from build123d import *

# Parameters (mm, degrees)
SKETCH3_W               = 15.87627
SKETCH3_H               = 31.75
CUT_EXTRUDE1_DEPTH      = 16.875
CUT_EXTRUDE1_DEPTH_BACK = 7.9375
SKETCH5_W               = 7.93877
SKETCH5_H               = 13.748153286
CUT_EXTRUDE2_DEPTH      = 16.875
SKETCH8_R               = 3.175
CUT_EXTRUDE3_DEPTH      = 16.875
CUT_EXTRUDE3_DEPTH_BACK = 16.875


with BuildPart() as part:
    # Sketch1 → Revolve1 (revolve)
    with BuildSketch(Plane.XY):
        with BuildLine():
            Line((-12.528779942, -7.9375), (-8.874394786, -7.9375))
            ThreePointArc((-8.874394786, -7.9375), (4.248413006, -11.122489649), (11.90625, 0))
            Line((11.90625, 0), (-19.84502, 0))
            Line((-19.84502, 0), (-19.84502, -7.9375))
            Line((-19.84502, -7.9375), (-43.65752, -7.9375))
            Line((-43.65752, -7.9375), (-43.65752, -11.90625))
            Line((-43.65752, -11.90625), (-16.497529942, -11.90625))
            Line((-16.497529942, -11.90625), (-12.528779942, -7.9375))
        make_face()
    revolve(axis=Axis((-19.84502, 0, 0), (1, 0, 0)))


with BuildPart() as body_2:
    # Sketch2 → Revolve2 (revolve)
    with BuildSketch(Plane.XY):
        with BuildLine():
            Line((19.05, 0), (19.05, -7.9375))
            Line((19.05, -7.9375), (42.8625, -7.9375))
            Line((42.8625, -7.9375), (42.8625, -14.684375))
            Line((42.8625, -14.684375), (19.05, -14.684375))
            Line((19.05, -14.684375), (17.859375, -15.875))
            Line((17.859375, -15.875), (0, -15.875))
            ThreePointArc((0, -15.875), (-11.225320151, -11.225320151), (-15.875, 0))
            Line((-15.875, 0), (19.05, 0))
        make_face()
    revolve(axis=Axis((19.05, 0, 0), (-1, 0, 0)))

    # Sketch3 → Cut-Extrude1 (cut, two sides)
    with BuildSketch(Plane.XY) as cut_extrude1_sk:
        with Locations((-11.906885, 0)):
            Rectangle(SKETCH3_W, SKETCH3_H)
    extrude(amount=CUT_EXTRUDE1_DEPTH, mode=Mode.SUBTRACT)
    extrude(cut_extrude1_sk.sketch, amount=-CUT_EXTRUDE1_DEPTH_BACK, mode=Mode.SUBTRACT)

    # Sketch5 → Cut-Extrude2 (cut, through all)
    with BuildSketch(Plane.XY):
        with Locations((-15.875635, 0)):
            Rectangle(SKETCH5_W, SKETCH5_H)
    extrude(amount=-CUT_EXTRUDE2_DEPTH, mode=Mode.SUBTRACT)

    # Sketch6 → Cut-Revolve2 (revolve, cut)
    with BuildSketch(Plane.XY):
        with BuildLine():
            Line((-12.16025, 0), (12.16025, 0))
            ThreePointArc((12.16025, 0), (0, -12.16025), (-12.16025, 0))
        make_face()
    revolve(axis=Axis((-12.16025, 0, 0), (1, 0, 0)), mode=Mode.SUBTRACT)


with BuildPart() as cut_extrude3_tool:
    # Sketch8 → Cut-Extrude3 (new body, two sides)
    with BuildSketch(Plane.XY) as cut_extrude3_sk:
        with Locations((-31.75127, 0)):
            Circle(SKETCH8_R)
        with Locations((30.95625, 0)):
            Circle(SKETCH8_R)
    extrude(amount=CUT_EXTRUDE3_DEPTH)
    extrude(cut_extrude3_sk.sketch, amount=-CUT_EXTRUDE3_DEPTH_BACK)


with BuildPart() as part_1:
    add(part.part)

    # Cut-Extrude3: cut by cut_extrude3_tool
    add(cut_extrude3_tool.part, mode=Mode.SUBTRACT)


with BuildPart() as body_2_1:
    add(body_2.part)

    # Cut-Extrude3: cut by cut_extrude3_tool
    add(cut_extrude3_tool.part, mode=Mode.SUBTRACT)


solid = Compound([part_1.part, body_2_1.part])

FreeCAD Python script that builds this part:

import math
import FreeCAD as App
import Part
import Sketcher

V = App.Vector
Q = App.Units.Quantity


def add_polygon(sketch, points):
    """Adds a closed chain of lines whose ends are joined by coincident constraints."""
    first, n = sketch.GeometryCount, len(points)
    for a, b in zip(points, points[1:] + points[:1]):
        sketch.addGeometry(Part.LineSegment(App.Vector(*a, 0), App.Vector(*b, 0)), False)
    for i in range(n):
        sketch.addConstraint(Sketcher.Constraint("Coincident", first + i, 2, first + (i + 1) % n, 1))

doc = App.newDocument("Part")
body = doc.addObject("PartDesign::Body", "Body")

sketch1 = body.newObject("Sketcher::SketchObject", "Sketch")
sketch1.AttachmentSupport = (doc.getObject("XY_Plane"), [""])
sketch1.MapMode = "FlatFace"
sketch1.addGeometry(Part.LineSegment(V(-12.5, -7.9, 0), V(-8.9, -7.9, 0)), False)
sketch1.addGeometry(Part.ArcOfCircle(Part.Circle(V(0, 0, 0), V(0, 0, 1), 11.9), math.radians(-138), math.radians(0)), False)
sketch1.addGeometry(Part.LineSegment(V(11.9, 0, 0), V(-19.8, 0, 0)), False)
sketch1.addGeometry(Part.LineSegment(V(-19.8, 0, 0), V(-19.8, -7.9, 0)), False)
sketch1.addGeometry(Part.LineSegment(V(-19.8, -7.9, 0), V(-43.7, -7.9, 0)), False)
sketch1.addGeometry(Part.LineSegment(V(-43.7, -7.9, 0), V(-43.7, -11.9, 0)), False)
sketch1.addGeometry(Part.LineSegment(V(-43.7, -11.9, 0), V(-16.5, -11.9, 0)), False)
sketch1.addGeometry(Part.LineSegment(V(-16.5, -11.9, 0), V(-12.5, -7.9, 0)), False)
sketch1.addConstraint(Sketcher.Constraint("Coincident", 0, 2, 1, 1))
sketch1.addConstraint(Sketcher.Constraint("Coincident", 1, 2, 2, 1))
sketch1.addConstraint(Sketcher.Constraint("Coincident", 2, 2, 3, 1))
sketch1.addConstraint(Sketcher.Constraint("Coincident", 3, 2, 4, 1))
sketch1.addConstraint(Sketcher.Constraint("Coincident", 4, 2, 5, 1))
sketch1.addConstraint(Sketcher.Constraint("Coincident", 5, 2, 6, 1))
sketch1.addConstraint(Sketcher.Constraint("Coincident", 6, 2, 7, 1))
sketch1.addConstraint(Sketcher.Constraint("Coincident", 7, 2, 0, 1))
sketch1.addConstraint(Sketcher.Constraint("Horizontal", 0))
sketch1.addConstraint(Sketcher.Constraint("Horizontal", 2))
sketch1.addConstraint(Sketcher.Constraint("Vertical", 3))
sketch1.addConstraint(Sketcher.Constraint("Horizontal", 4))
sketch1.addConstraint(Sketcher.Constraint("Vertical", 5))
sketch1.addConstraint(Sketcher.Constraint("Horizontal", 6))
sketch1.addConstraint(Sketcher.Constraint("Coincident", 1, 3, -1, 1))
sketch1.addConstraint(Sketcher.Constraint("PointOnObject", 1, 2, -1))
sketch1.addConstraint(Sketcher.Constraint("Horizontal", 0, 2, 3, 2))
sketch1.addConstraint(Sketcher.Constraint("Angle", 7, Q("45 deg")))
sketch1.addConstraint(Sketcher.Constraint("Radius", 1, Q("0.46875 in")))
sketch1.addConstraint(Sketcher.Constraint("DistanceX", 4, 2, 4, 1, Q("0.9375 in")))
sketch1.addConstraint(Sketcher.Constraint("DistanceY", 3, 2, 3, 1, Q("0.3125 in")))
sketch1.addConstraint(Sketcher.Constraint("DistanceY", 5, 2, 5, 1, Q("0.15625 in")))
sketch1.addConstraint(Sketcher.Constraint("DistanceX", 2, 2, -1, 1, Q("0.7813 in")))
sketch1.addConstraint(Sketcher.Constraint("DistanceX", 6, 1, 6, 2, Q("27.15999 mm")))
revolution = body.newObject("PartDesign::Revolution", "Revolution")
revolution.Profile = sketch1
revolution.ReferenceAxis = (sketch1, ["H_Axis"])
revolution.Angle = 360
body2 = doc.addObject("PartDesign::Body", "Body001")

sketch2 = body2.newObject("Sketcher::SketchObject", "Sketch001")
sketch2.AttachmentSupport = (doc.getObject("XY_Plane001"), [""])
sketch2.MapMode = "FlatFace"
sketch2.addGeometry(Part.LineSegment(V(19.1, -7.9, 0), V(19.1, 0, 0)), False)
sketch2.addGeometry(Part.LineSegment(V(19.1, 0, 0), V(-15.9, 0, 0)), False)
sketch2.addGeometry(Part.ArcOfCircle(Part.Circle(V(0, 0, 0), V(0, 0, 1), 15.9), math.radians(-180), math.radians(-90)), False)
sketch2.addGeometry(Part.LineSegment(V(0, -15.9, 0), V(17.9, -15.9, 0)), False)
sketch2.addGeometry(Part.LineSegment(V(17.9, -15.9, 0), V(19.1, -14.7, 0)), False)
sketch2.addGeometry(Part.LineSegment(V(19.1, -14.7, 0), V(42.9, -14.7, 0)), False)
sketch2.addGeometry(Part.LineSegment(V(42.9, -14.7, 0), V(42.9, -7.9, 0)), False)
sketch2.addGeometry(Part.LineSegment(V(42.9, -7.9, 0), V(19.1, -7.9, 0)), False)
sketch2.addConstraint(Sketcher.Constraint("Coincident", 0, 2, 1, 1))
sketch2.addConstraint(Sketcher.Constraint("Coincident", 1, 2, 2, 1))
sketch2.addConstraint(Sketcher.Constraint("Tangent", 2, 2, 3, 1))
sketch2.addConstraint(Sketcher.Constraint("Coincident", 3, 2, 4, 1))
sketch2.addConstraint(Sketcher.Constraint("Coincident", 4, 2, 5, 1))
sketch2.addConstraint(Sketcher.Constraint("Coincident", 5, 2, 6, 1))
sketch2.addConstraint(Sketcher.Constraint("Coincident", 6, 2, 7, 1))
sketch2.addConstraint(Sketcher.Constraint("Coincident", 7, 2, 0, 1))
sketch2.addConstraint(Sketcher.Constraint("Vertical", 0))
sketch2.addConstraint(Sketcher.Constraint("Horizontal", 1))
sketch2.addConstraint(Sketcher.Constraint("Horizontal", 3))
sketch2.addConstraint(Sketcher.Constraint("Horizontal", 5))
sketch2.addConstraint(Sketcher.Constraint("Vertical", 6))
sketch2.addConstraint(Sketcher.Constraint("Horizontal", 7))
sketch2.addConstraint(Sketcher.Constraint("Coincident", 2, 3, -1, 1))
sketch2.addConstraint(Sketcher.Constraint("PointOnObject", 0, 2, -1))
sketch2.addConstraint(Sketcher.Constraint("Vertical", 0, 2, 4, 2))
sketch2.addConstraint(Sketcher.Constraint("Angle", 4, Q("45 deg")))
sketch2.addConstraint(Sketcher.Constraint("Radius", 2, Q("0.625 in")))
sketch2.addConstraint(Sketcher.Constraint("DistanceX", 1, 2, 1, 1, Q("1.375 in")))
sketch2.addConstraint(Sketcher.Constraint("DistanceX", 3, 1, 3, 2, Q("0.703125 in")))
sketch2.addConstraint(Sketcher.Constraint("DistanceX", 5, 1, 5, 2, Q("0.9375 in")))
sketch2.addConstraint(Sketcher.Constraint("DistanceY", 0, 1, 0, 2, Q("0.3125 in")))
revolution2 = body2.newObject("PartDesign::Revolution", "Revolution001")
revolution2.Profile = sketch2
revolution2.ReferenceAxis = (sketch2, ["H_Axis"])
revolution2.Angle = 360

sketch3 = body2.newObject("Sketcher::SketchObject", "Sketch002")
sketch3.AttachmentSupport = (doc.getObject("XY_Plane001"), [""])
sketch3.MapMode = "FlatFace"
add_polygon(sketch3, [(-20, 16), (-20, -16), (-4, -16), (-4, 16)])
sketch3.addConstraint(Sketcher.Constraint("Vertical", 0))
sketch3.addConstraint(Sketcher.Constraint("Horizontal", 1))
sketch3.addConstraint(Sketcher.Constraint("Vertical", 2))
sketch3.addConstraint(Sketcher.Constraint("Horizontal", 3))
sketch3.addConstraint(Sketcher.Constraint("DistanceY", 0, 2, 0, 1, Q("1.25 in")))
sketch3.addConstraint(Sketcher.Constraint("DistanceY", 0, 2, -1, 1, Q("0.625 in")))
sketch3.addConstraint(Sketcher.Constraint("DistanceX", 1, 2, -1, 1, Q("0.15625 in")))
sketch3.addConstraint(Sketcher.Constraint("DistanceX", 0, 2, -1, 1, Q("0.7813 in")))
pocket1 = body2.newObject("PartDesign::Pocket", "Pocket")
pocket1.Profile = sketch3
pocket1.Type = "TwoLengths"
pocket1.Length = 16.875
pocket1.Length2 = Q("0.3125 in")
pocket1.Reversed = True

sketch4 = body2.newObject("Sketcher::SketchObject", "Sketch003")
sketch4.AttachmentSupport = (doc.getObject("XY_Plane001"), [""])
sketch4.MapMode = "FlatFace"
add_polygon(sketch4, [(-20, 7), (-20, -7), (-12, -7), (-12, 7)])
sketch4.addConstraint(Sketcher.Constraint("Vertical", 0))
sketch4.addConstraint(Sketcher.Constraint("Horizontal", 1))
sketch4.addConstraint(Sketcher.Constraint("Vertical", 2))
sketch4.addConstraint(Sketcher.Constraint("Horizontal", 3))
sketch4.addConstraint(Sketcher.Constraint("DistanceX", 1, 2, -1, 1, Q("0.46875 in")))
sketch4.addConstraint(Sketcher.Constraint("DistanceX", 0, 2, -1, 1, Q("0.7813 in")))
sketch4.addConstraint(Sketcher.Constraint("DistanceY", 0, 2, 0, 1, Q("13.748153 mm")))
sketch4.addConstraint(Sketcher.Constraint("DistanceY", 0, 2, -1, 1, Q("6.874077 mm")))
pocket2 = body2.newObject("PartDesign::Pocket", "Pocket001")
pocket2.Profile = sketch4
pocket2.Type = "ThroughAll"

sketch5 = body2.newObject("Sketcher::SketchObject", "Sketch004")
sketch5.AttachmentSupport = (doc.getObject("XY_Plane001"), [""])
sketch5.MapMode = "FlatFace"
sketch5.addGeometry(Part.LineSegment(V(12, 0, 0), V(-12, 0, 0)), False)
sketch5.addGeometry(Part.ArcOfCircle(Part.Circle(V(0, 0, 0), V(0, 0, 1), 12), math.radians(180), math.radians(360)), False)
sketch5.addConstraint(Sketcher.Constraint("Coincident", 0, 1, 1, 2))
sketch5.addConstraint(Sketcher.Constraint("Coincident", 1, 1, 0, 2))
sketch5.addConstraint(Sketcher.Constraint("Horizontal", 0))
sketch5.addConstraint(Sketcher.Constraint("Coincident", 1, 3, -1, 1))
sketch5.addConstraint(Sketcher.Constraint("PointOnObject", 0, 1, -1))
sketch5.addConstraint(Sketcher.Constraint("DistanceX", 0, 2, 0, 1, Q("0.9575 in")))
groove = body2.newObject("PartDesign::Groove", "Groove")
groove.Profile = sketch5
groove.ReferenceAxis = (sketch5, ["H_Axis"])
groove.Angle = 360
body3 = doc.addObject("PartDesign::Body", "Body002")
body3.AllowCompound = True

sketch6 = body3.newObject("Sketcher::SketchObject", "Sketch005")
sketch6.AttachmentSupport = (doc.getObject("XY_Plane002"), [""])
sketch6.MapMode = "FlatFace"
sketch6.addGeometry(Part.Circle(V(-31.8, 0, 0), V(0, 0, 1), 3.2), False)
sketch6.addGeometry(Part.Circle(V(31, 0, 0), V(0, 0, 1), 3.2), False)
sketch6.addConstraint(Sketcher.Constraint("Equal", 0, 1))
sketch6.addConstraint(Sketcher.Constraint("PointOnObject", 0, 3, -1))
sketch6.addConstraint(Sketcher.Constraint("PointOnObject", 1, 3, -1))
sketch6.addConstraint(Sketcher.Constraint("Diameter", 0, Q("0.25 in")))
sketch6.addConstraint(Sketcher.Constraint("DistanceX", -1, 1, 1, 3, Q("1.21875 in")))
sketch6.addConstraint(Sketcher.Constraint("DistanceX", 0, 3, 1, 3, Q("2.4688 in")))
pad1 = body3.newObject("PartDesign::Pad", "Pad")
pad1.Profile = sketch6
pad1.Type = "TwoLengths"
pad1.Length = 16.875
pad1.Length2 = 16.875
doc.recompute()

body4 = doc.addObject("PartDesign::Body", "Body003")
body4.BaseFeature = body3
boolean = body.newObject("PartDesign::Boolean", "Boolean")
boolean.Type = "Cut"
boolean.addObjects([body4])
doc.recompute()

boolean2 = body2.newObject("PartDesign::Boolean", "Boolean001")
boolean2.Type = "Cut"
boolean2.addObjects([body3])

doc.recompute()
